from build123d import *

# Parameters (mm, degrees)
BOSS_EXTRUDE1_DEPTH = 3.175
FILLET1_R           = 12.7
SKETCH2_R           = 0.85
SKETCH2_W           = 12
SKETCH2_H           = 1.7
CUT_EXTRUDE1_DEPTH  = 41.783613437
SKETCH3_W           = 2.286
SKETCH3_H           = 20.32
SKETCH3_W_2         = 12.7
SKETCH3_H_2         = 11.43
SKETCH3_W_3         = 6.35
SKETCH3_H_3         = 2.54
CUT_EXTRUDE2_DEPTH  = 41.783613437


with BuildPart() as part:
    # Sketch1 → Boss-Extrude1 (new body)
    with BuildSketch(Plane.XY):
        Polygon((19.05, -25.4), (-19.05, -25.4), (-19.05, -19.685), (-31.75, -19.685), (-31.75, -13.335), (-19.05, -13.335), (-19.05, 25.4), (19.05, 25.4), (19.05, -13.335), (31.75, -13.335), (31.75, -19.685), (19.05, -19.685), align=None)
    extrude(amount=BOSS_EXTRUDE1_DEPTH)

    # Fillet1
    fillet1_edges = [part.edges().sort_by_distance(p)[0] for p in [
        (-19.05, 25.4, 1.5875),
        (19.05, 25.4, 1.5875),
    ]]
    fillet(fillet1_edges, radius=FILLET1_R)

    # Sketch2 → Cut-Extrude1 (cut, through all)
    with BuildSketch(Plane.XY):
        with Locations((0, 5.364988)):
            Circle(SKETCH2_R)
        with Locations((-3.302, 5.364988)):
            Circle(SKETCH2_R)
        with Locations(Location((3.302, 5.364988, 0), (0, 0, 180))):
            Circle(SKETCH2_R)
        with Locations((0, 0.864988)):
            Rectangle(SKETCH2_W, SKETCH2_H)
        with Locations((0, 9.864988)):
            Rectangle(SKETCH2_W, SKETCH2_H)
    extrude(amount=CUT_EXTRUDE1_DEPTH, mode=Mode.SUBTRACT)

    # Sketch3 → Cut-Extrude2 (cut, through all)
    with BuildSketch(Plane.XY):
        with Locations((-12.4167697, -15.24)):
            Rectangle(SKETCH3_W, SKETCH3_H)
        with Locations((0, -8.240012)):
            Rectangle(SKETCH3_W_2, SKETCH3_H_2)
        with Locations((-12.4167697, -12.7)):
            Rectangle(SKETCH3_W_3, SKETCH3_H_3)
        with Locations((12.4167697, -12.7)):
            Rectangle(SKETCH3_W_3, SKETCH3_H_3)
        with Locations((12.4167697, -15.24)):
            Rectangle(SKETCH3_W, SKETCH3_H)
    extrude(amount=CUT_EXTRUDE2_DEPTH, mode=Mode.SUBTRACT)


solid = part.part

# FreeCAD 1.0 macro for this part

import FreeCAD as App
import Part
import Sketcher
Q = App.Units.Quantity


def edges_at(feature, points):
    """Names of the edges that pass closest to the given points."""
    edges = feature.Shape.Edges
    near = lambda p: min(range(len(edges)), key=lambda i: edges[i].distToShape(Part.Vertex(*p))[0])
    return sorted({f"Edge{near(p) + 1}" for p in points})

doc = App.newDocument("Part")
body = doc.addObject("PartDesign::Body", "Body")

# Sketch on XY plane
sketch1 = doc.addObject("Sketcher::SketchObject", "Sketch")
body.addObject(sketch1)
sketch1.AttachmentSupport = (doc.XY_Plane, [""])
sketch1.MapMode = "FlatFace"
sketch1.addGeometry([
    Part.LineSegment(App.Vector(-19.05, -25.4, 0), App.Vector(19.05, -25.4, 0)),  # 0
    Part.LineSegment(App.Vector(19.05, -25.4, 0), App.Vector(19.05, -19.685, 0)),  # 1
    Part.LineSegment(App.Vector(19.05, -19.685, 0), App.Vector(31.75, -19.685, 0)),  # 2
    Part.LineSegment(App.Vector(31.75, -19.685, 0), App.Vector(31.75, -13.335, 0)),  # 3
    Part.LineSegment(App.Vector(31.75, -13.335, 0), App.Vector(19.05, -13.335, 0)),  # 4
    Part.LineSegment(App.Vector(19.05, -13.335, 0), App.Vector(19.05, 25.4, 0)),  # 5
    Part.LineSegment(App.Vector(19.05, 25.4, 0), App.Vector(-19.05, 25.4, 0)),  # 6
    Part.LineSegment(App.Vector(-19.05, 25.4, 0), App.Vector(-19.05, -13.335, 0)),  # 7
    Part.LineSegment(App.Vector(-19.05, -13.335, 0), App.Vector(-31.75, -13.335, 0)),  # 8
    Part.LineSegment(App.Vector(-31.75, -13.335, 0), App.Vector(-31.75, -19.685, 0)),  # 9
    Part.LineSegment(App.Vector(-31.75, -19.685, 0), App.Vector(-19.05, -19.685, 0)),  # 10
    Part.LineSegment(App.Vector(-19.05, -19.685, 0), App.Vector(-19.05, -25.4, 0)),  # 11
], False)
sketch1.addConstraint([
    Sketcher.Constraint("Coincident", 0, 2, 1, 1),
    Sketcher.Constraint("Coincident", 1, 2, 2, 1),
    Sketcher.Constraint("Coincident", 2, 2, 3, 1),
    Sketcher.Constraint("Coincident", 3, 2, 4, 1),
    Sketcher.Constraint("Coincident", 4, 2, 5, 1),
    Sketcher.Constraint("Coincident", 5, 2, 6, 1),
    Sketcher.Constraint("Coincident", 6, 2, 7, 1),
    Sketcher.Constraint("Coincident", 7, 2, 8, 1),
    Sketcher.Constraint("Coincident", 8, 2, 9, 1),
    Sketcher.Constraint("Coincident", 9, 2, 10, 1),
    Sketcher.Constraint("Coincident", 10, 2, 11, 1),
    Sketcher.Constraint("Coincident", 11, 2, 0, 1),
    Sketcher.Constraint("Horizontal", 0),
    Sketcher.Constraint("Vertical", 1),
    Sketcher.Constraint("Horizontal", 2),
    Sketcher.Constraint("Vertical", 3),
    Sketcher.Constraint("Horizontal", 4),
    Sketcher.Constraint("Vertical", 5),
    Sketcher.Constraint("Horizontal", 6),
    Sketcher.Constraint("Vertical", 7),
    Sketcher.Constraint("Horizontal", 8),
    Sketcher.Constraint("Vertical", 9),
    Sketcher.Constraint("Horizontal", 10),
    Sketcher.Constraint("Vertical", 11),
    Sketcher.Constraint("Symmetric", 0, 2, 6, 2, -1, 1),
    Sketcher.Constraint("Symmetric", 4, 2, 7, 2, -2),
    Sketcher.Constraint("Symmetric", 2, 2, 9, 2, -2),
    Sketcher.Constraint("Vertical", 7, 2, 10, 2),
    Sketcher.Constraint("DistanceX", 0, 1, 0, 2, Q("1.5 in")),
    Sketcher.Constraint("DistanceX", 2, 1, 2, 2, Q("0.5 in")),
    Sketcher.Constraint("DistanceY", 0, 2, -1, 1, Q("1 in")),
    Sketcher.Constraint("DistanceY", 3, 1, 3, 2, Q("0.25 in")),
    Sketcher.Constraint("DistanceY", 1, 1, 1, 2, Q("0.225 in")),
])
pad1 = doc.addObject("PartDesign::Pad", "Pad")
body.addObject(pad1)
pad1.Profile = sketch1
pad1.Length = Q("0.125 in")
doc.recompute()

fillet = doc.addObject("PartDesign::Fillet", "Fillet")
body.addObject(fillet)
fillet.Base = (pad1, edges_at(pad1, [(-19.05, 25.4, 1.587), (19.05, 25.4, 1.587)]))
fillet.Radius = Q("0.5 in")

# Sketch on XY plane
sketch2 = doc.addObject("Sketcher::SketchObject", "Sketch001")
body.addObject(sketch2)
sketch2.AttachmentSupport = (doc.XY_Plane, [""])
sketch2.MapMode = "FlatFace"
sketch2.addGeometry([
    Part.Circle(App.Vector(0, 5.364988, 0), App.Vector(0, 0, 1), 0.85),  # 0
    Part.Circle(App.Vector(-3.302, 5.364988, 0), App.Vector(0, 0, 1), 0.85),  # 1
    Part.Circle(App.Vector(3.302, 5.364988, 0), App.Vector(0, 0, 1), 0.85),  # 2
    Part.LineSegment(App.Vector(-6, 1.714988, 0), App.Vector(-6, 0.014988, 0)),  # 3
    Part.LineSegment(App.Vector(-6, 0.014988, 0), App.Vector(6, 0.014988, 0)),  # 4
    Part.LineSegment(App.Vector(6, 0.014988, 0), App.Vector(6, 1.714988, 0)),  # 5
    Part.LineSegment(App.Vector(6, 1.714988, 0), App.Vector(-6, 1.714988, 0)),  # 6
    Part.LineSegment(App.Vector(-6, 10.714988, 0), App.Vector(-6, 9.014988, 0)),  # 7
    Part.LineSegment(App.Vector(-6, 9.014988, 0), App.Vector(6, 9.014988, 0)),  # 8
    Part.LineSegment(App.Vector(6, 9.014988, 0), App.Vector(6, 10.714988, 0)),  # 9
    Part.LineSegment(App.Vector(6, 10.714988, 0), App.Vector(-6, 10.714988, 0)),  # 10
], False)
sketch2.addConstraint([
    Sketcher.Constraint("Coincident", 3, 2, 4, 1),
    Sketcher.Constraint("Coincident", 4, 2, 5, 1),
    Sketcher.Constraint("Coincident", 5, 2, 6, 1),
    Sketcher.Constraint("Coincident", 6, 2, 3, 1),
    Sketcher.Constraint("Coincident", 7, 2, 8, 1),
    Sketcher.Constraint("Coincident", 8, 2, 9, 1),
    Sketcher.Constraint("Coincident", 9, 2, 10, 1),
    Sketcher.Constraint("Coincident", 10, 2, 7, 1),
    Sketcher.Constraint("Vertical", 3),
    Sketcher.Constraint("Horizontal", 4),
    Sketcher.Constraint("Vertical", 5),
    Sketcher.Constraint("Horizontal", 6),
    Sketcher.Constraint("Vertical", 7),
    Sketcher.Constraint("Horizontal", 8),
    Sketcher.Constraint("Vertical", 9),
    Sketcher.Constraint("Horizontal", 10),
    Sketcher.Constraint("Equal", 0, 1),
    Sketcher.Constraint("Equal", 1, 2),
    Sketcher.Constraint("Symmetric", 1, 3, 2, 3, -2),
    Sketcher.Constraint("PointOnObject", 0, 3, -2),
    Sketcher.Constraint("Horizontal", 0, 3, 1, 3),
    Sketcher.Constraint("Vertical", 6, 2, 7, 2),
    Sketcher.Constraint("Vertical", 5, 2, 8, 2),
    Sketcher.Constraint("Equal", 5, 7),
    Sketcher.Constraint("Diameter", 0, Q("1.7 mm")),
    Sketcher.Constraint("DistanceX", 1, 3, -1, 1, Q("0.13 in")),
    Sketcher.Constraint("DistanceX", 4, 1, 4, 2, Q("12 mm")),
    Sketcher.Constraint("DistanceY", 3, 2, 3, 1, Q("1.7 mm")),
    Sketcher.Constraint("DistanceX", 3, 2, -1, 1, Q("6 mm")),
    Sketcher.Constraint("DistanceY", 3, 2, 1, 3, Q("5.35 mm")),
    Sketcher.Constraint("DistanceY", 1, 3, 7, 2, Q("3.65 mm")),
    Sketcher.Constraint("DistanceY", -1, 1, 0, 3, Q("5.364988 mm")),
])
pocket1 = doc.addObject("PartDesign::Pocket", "Pocket")
body.addObject(pocket1)
pocket1.Profile = sketch2
pocket1.Type = "ThroughAll"
pocket1.Reversed = True

# Sketch on XY plane
sketch3 = doc.addObject("Sketcher::SketchObject", "Sketch002")
body.addObject(sketch3)
sketch3.AttachmentSupport = (doc.XY_Plane, [""])
sketch3.MapMode = "FlatFace"
sketch3.addGeometry([
    Part.LineSegment(App.Vector(-13.55977, -13.97, 0), App.Vector(-13.55977, -25.4, 0)),  # 0
    Part.LineSegment(App.Vector(-13.55977, -25.4, 0), App.Vector(-11.27377, -25.4, 0)),  # 1
    Part.LineSegment(App.Vector(-11.27377, -25.4, 0), App.Vector(-11.27377, -13.97, 0)),  # 2
    Part.LineSegment(App.Vector(-11.27377, -13.97, 0), App.Vector(-9.24177, -13.97, 0)),  # 3
    Part.LineSegment(App.Vector(-9.24177, -13.97, 0), App.Vector(-9.24177, -11.43, 0)),  # 4
    Part.LineSegment(App.Vector(-9.24177, -11.43, 0), App.Vector(-11.27377, -11.43, 0)),  # 5
    Part.LineSegment(App.Vector(-11.27377, -11.43, 0), App.Vector(-11.27377, -5.08, 0)),  # 6
    Part.LineSegment(App.Vector(-11.27377, -5.08, 0), App.Vector(-13.55977, -5.08, 0)),  # 7
    Part.LineSegment(App.Vector(-13.55977, -5.08, 0), App.Vector(-13.55977, -11.43, 0)),  # 8
    Part.LineSegment(App.Vector(-13.55977, -11.43, 0), App.Vector(-15.59177, -11.43, 0)),  # 9
    Part.LineSegment(App.Vector(-15.59177, -11.43, 0), App.Vector(-15.59177, -13.97, 0)),  # 10
    Part.LineSegment(App.Vector(-15.59177, -13.97, 0), App.Vector(-13.55977, -13.97, 0)),  # 11
    Part.LineSegment(App.Vector(-6.35, -2.525012, 0), App.Vector(-6.35, -13.955012, 0)),  # 12
    Part.LineSegment(App.Vector(-6.35, -13.955012, 0), App.Vector(6.35, -13.955012, 0)),  # 13
    Part.LineSegment(App.Vector(6.35, -13.955012, 0), App.Vector(6.35, -2.525012, 0)),  # 14
    Part.LineSegment(App.Vector(6.35, -2.525012, 0), App.Vector(-6.35, -2.525012, 0)),  # 15
    Part.LineSegment(App.Vector(9.24177, -11.43, 0), App.Vector(9.24177, -13.97, 0)),  # 16
    Part.LineSegment(App.Vector(9.24177, -13.97, 0), App.Vector(11.27377, -13.97, 0)),  # 17
    Part.LineSegment(App.Vector(11.27377, -13.97, 0), App.Vector(11.27377, -25.4, 0)),  # 18
    Part.LineSegment(App.Vector(11.27377, -25.4, 0), App.Vector(13.55977, -25.4, 0)),  # 19
    Part.LineSegment(App.Vector(13.55977, -25.4, 0), App.Vector(13.55977, -13.97, 0)),  # 20
    Part.LineSegment(App.Vector(13.55977, -13.97, 0), App.Vector(15.59177, -13.97, 0)),  # 21
    Part.LineSegment(App.Vector(15.59177, -13.97, 0), App.Vector(15.59177, -11.43, 0)),  # 22
    Part.LineSegment(App.Vector(15.59177, -11.43, 0), App.Vector(13.55977, -11.43, 0)),  # 23
    Part.LineSegment(App.Vector(13.55977, -11.43, 0), App.Vector(13.55977, -5.08, 0)),  # 24
    Part.LineSegment(App.Vector(13.55977, -5.08, 0), App.Vector(11.27377, -5.08, 0)),  # 25
    Part.LineSegment(App.Vector(11.27377, -5.08, 0), App.Vector(11.27377, -11.43, 0)),  # 26
    Part.LineSegment(App.Vector(11.27377, -11.43, 0), App.Vector(9.24177, -11.43, 0)),  # 27
], False)
sketch3.addConstraint([
    Sketcher.Constraint("Coincident", 0, 2, 1, 1),
    Sketcher.Constraint("Coincident", 1, 2, 2, 1),
    Sketcher.Constraint("Coincident", 2, 2, 3, 1),
    Sketcher.Constraint("Coincident", 3, 2, 4, 1),
    Sketcher.Constraint("Coincident", 4, 2, 5, 1),
    Sketcher.Constraint("Coincident", 5, 2, 6, 1),
    Sketcher.Constraint("Coincident", 6, 2, 7, 1),
    Sketcher.Constraint("Coincident", 7, 2, 8, 1),
    Sketcher.Constraint("Coincident", 8, 2, 9, 1),
    Sketcher.Constraint("Coincident", 9, 2, 10, 1),
    Sketcher.Constraint("Coincident", 10, 2, 11, 1),
    Sketcher.Constraint("Coincident", 11, 2, 0, 1),
    Sketcher.Constraint("Coincident", 12, 2, 13, 1),
    Sketcher.Constraint("Coincident", 13, 2, 14, 1),
    Sketcher.Constraint("Coincident", 14, 2, 15, 1),
    Sketcher.Constraint("Coincident", 15, 2, 12, 1),
    Sketcher.Constraint("Coincident", 16, 2, 17, 1),
    Sketcher.Constraint("Coincident", 17, 2, 18, 1),
    Sketcher.Constraint("Coincident", 18, 2, 19, 1),
    Sketcher.Constraint("Coincident", 19, 2, 20, 1),
    Sketcher.Constraint("Coincident", 20, 2, 21, 1),
    Sketcher.Constraint("Coincident", 21, 2, 22, 1),
    Sketcher.Constraint("Coincident", 22, 2, 23, 1),
    Sketcher.Constraint("Coincident", 23, 2, 24, 1),
    Sketcher.Constraint("Coincident", 24, 2, 25, 1),
    Sketcher.Constraint("Coincident", 25, 2, 26, 1),
    Sketcher.Constraint("Coincident", 26, 2, 27, 1),
    Sketcher.Constraint("Coincident", 27, 2, 16, 1),
    Sketcher.Constraint("Vertical", 0),
    Sketcher.Constraint("Horizontal", 1),
    Sketcher.Constraint("Vertical", 2),
    Sketcher.Constraint("Horizontal", 3),
    Sketcher.Constraint("Vertical", 4),
    Sketcher.Constraint("Horizontal", 5),
    Sketcher.Constraint("Vertical", 6),
    Sketcher.Constraint("Horizontal", 7),
    Sketcher.Constraint("Vertical", 8),
    Sketcher.Constraint("Horizontal", 9),
    Sketcher.Constraint("Vertical", 10),
    Sketcher.Constraint("Horizontal", 11),
    Sketcher.Constraint("Vertical", 12),
    Sketcher.Constraint("Horizontal", 13),
    Sketcher.Constraint("Vertical", 14),
    Sketcher.Constraint("Horizontal", 15),
    Sketcher.Constraint("Vertical", 16),
    Sketcher.Constraint("Horizontal", 17),
    Sketcher.Constraint("Vertical", 18),
    Sketcher.Constraint("Horizontal", 19),
    Sketcher.Constraint("Vertical", 20),
    Sketcher.Constraint("Horizontal", 21),
    Sketcher.Constraint("Vertical", 22),
    Sketcher.Constraint("Horizontal", 23),
    Sketcher.Constraint("Vertical", 24),
    Sketcher.Constraint("Horizontal", 25),
    Sketcher.Constraint("Vertical", 26),
    Sketcher.Constraint("Horizontal", 27),
    Sketcher.Constraint("Symmetric", 3, 2, 16, 2, -2),
    Sketcher.Constraint("Symmetric", 1, 2, 18, 2, -2),
    Sketcher.Constraint("Symmetric", 11, 2, 20, 2, -2),
    Sketcher.Constraint("Symmetric", 9, 2, 22, 2, -2),
    Sketcher.Constraint("Symmetric", 7, 2, 24, 2, -2),
    Sketcher.Constraint("Symmetric", 5, 2, 26, 2, -2),
    Sketcher.Constraint("Horizontal", 5, 2, 8, 2),
    Sketcher.Constraint("Horizontal", 3, 2, 10, 2),
    Sketcher.Constraint("Vertical", 2, 2, 5, 2),
    Sketcher.Constraint("Vertical", 0, 2, 7, 2),
    Sketcher.Constraint("Equal", 5, 9),
    Sketcher.Constraint("Equal", 2, 12),
    Sketcher.Constraint("DistanceX", 13, 1, 13, 2, Q("0.5 in")),
    Sketcher.Constraint("DistanceY", 4, 1, 4, 2, Q("0.1 in")),
    Sketcher.Constraint("DistanceY", 0, 2, -1, 1, Q("1 in")),
    Sketcher.Constraint("DistanceX", 1, 1, 1, 2, Q("0.09 in")),
    Sketcher.Constraint("DistanceX", 3, 1, 3, 2, Q("0.08 in")),
    Sketcher.Constraint("DistanceY", 0, 2, 0, 1, Q("0.45 in")),
    Sketcher.Constraint("DistanceY", 6, 1, 6, 2, Q("0.25 in")),
    Sketcher.Constraint("DistanceX", 12, 2, -1, 1, Q("0.25 in")),
    Sketcher.Constraint("DistanceX", 0, 2, -1, 1, Q("13.55977 mm")),
    Sketcher.Constraint("DistanceY", 14, 2, -1, 1, Q("2.525012 mm")),
])
pocket2 = doc.addObject("PartDesign::Pocket", "Pocket001")
body.addObject(pocket2)
pocket2.Profile = sketch3
pocket2.Type = "ThroughAll"
pocket2.Reversed = True

doc.recompute()
